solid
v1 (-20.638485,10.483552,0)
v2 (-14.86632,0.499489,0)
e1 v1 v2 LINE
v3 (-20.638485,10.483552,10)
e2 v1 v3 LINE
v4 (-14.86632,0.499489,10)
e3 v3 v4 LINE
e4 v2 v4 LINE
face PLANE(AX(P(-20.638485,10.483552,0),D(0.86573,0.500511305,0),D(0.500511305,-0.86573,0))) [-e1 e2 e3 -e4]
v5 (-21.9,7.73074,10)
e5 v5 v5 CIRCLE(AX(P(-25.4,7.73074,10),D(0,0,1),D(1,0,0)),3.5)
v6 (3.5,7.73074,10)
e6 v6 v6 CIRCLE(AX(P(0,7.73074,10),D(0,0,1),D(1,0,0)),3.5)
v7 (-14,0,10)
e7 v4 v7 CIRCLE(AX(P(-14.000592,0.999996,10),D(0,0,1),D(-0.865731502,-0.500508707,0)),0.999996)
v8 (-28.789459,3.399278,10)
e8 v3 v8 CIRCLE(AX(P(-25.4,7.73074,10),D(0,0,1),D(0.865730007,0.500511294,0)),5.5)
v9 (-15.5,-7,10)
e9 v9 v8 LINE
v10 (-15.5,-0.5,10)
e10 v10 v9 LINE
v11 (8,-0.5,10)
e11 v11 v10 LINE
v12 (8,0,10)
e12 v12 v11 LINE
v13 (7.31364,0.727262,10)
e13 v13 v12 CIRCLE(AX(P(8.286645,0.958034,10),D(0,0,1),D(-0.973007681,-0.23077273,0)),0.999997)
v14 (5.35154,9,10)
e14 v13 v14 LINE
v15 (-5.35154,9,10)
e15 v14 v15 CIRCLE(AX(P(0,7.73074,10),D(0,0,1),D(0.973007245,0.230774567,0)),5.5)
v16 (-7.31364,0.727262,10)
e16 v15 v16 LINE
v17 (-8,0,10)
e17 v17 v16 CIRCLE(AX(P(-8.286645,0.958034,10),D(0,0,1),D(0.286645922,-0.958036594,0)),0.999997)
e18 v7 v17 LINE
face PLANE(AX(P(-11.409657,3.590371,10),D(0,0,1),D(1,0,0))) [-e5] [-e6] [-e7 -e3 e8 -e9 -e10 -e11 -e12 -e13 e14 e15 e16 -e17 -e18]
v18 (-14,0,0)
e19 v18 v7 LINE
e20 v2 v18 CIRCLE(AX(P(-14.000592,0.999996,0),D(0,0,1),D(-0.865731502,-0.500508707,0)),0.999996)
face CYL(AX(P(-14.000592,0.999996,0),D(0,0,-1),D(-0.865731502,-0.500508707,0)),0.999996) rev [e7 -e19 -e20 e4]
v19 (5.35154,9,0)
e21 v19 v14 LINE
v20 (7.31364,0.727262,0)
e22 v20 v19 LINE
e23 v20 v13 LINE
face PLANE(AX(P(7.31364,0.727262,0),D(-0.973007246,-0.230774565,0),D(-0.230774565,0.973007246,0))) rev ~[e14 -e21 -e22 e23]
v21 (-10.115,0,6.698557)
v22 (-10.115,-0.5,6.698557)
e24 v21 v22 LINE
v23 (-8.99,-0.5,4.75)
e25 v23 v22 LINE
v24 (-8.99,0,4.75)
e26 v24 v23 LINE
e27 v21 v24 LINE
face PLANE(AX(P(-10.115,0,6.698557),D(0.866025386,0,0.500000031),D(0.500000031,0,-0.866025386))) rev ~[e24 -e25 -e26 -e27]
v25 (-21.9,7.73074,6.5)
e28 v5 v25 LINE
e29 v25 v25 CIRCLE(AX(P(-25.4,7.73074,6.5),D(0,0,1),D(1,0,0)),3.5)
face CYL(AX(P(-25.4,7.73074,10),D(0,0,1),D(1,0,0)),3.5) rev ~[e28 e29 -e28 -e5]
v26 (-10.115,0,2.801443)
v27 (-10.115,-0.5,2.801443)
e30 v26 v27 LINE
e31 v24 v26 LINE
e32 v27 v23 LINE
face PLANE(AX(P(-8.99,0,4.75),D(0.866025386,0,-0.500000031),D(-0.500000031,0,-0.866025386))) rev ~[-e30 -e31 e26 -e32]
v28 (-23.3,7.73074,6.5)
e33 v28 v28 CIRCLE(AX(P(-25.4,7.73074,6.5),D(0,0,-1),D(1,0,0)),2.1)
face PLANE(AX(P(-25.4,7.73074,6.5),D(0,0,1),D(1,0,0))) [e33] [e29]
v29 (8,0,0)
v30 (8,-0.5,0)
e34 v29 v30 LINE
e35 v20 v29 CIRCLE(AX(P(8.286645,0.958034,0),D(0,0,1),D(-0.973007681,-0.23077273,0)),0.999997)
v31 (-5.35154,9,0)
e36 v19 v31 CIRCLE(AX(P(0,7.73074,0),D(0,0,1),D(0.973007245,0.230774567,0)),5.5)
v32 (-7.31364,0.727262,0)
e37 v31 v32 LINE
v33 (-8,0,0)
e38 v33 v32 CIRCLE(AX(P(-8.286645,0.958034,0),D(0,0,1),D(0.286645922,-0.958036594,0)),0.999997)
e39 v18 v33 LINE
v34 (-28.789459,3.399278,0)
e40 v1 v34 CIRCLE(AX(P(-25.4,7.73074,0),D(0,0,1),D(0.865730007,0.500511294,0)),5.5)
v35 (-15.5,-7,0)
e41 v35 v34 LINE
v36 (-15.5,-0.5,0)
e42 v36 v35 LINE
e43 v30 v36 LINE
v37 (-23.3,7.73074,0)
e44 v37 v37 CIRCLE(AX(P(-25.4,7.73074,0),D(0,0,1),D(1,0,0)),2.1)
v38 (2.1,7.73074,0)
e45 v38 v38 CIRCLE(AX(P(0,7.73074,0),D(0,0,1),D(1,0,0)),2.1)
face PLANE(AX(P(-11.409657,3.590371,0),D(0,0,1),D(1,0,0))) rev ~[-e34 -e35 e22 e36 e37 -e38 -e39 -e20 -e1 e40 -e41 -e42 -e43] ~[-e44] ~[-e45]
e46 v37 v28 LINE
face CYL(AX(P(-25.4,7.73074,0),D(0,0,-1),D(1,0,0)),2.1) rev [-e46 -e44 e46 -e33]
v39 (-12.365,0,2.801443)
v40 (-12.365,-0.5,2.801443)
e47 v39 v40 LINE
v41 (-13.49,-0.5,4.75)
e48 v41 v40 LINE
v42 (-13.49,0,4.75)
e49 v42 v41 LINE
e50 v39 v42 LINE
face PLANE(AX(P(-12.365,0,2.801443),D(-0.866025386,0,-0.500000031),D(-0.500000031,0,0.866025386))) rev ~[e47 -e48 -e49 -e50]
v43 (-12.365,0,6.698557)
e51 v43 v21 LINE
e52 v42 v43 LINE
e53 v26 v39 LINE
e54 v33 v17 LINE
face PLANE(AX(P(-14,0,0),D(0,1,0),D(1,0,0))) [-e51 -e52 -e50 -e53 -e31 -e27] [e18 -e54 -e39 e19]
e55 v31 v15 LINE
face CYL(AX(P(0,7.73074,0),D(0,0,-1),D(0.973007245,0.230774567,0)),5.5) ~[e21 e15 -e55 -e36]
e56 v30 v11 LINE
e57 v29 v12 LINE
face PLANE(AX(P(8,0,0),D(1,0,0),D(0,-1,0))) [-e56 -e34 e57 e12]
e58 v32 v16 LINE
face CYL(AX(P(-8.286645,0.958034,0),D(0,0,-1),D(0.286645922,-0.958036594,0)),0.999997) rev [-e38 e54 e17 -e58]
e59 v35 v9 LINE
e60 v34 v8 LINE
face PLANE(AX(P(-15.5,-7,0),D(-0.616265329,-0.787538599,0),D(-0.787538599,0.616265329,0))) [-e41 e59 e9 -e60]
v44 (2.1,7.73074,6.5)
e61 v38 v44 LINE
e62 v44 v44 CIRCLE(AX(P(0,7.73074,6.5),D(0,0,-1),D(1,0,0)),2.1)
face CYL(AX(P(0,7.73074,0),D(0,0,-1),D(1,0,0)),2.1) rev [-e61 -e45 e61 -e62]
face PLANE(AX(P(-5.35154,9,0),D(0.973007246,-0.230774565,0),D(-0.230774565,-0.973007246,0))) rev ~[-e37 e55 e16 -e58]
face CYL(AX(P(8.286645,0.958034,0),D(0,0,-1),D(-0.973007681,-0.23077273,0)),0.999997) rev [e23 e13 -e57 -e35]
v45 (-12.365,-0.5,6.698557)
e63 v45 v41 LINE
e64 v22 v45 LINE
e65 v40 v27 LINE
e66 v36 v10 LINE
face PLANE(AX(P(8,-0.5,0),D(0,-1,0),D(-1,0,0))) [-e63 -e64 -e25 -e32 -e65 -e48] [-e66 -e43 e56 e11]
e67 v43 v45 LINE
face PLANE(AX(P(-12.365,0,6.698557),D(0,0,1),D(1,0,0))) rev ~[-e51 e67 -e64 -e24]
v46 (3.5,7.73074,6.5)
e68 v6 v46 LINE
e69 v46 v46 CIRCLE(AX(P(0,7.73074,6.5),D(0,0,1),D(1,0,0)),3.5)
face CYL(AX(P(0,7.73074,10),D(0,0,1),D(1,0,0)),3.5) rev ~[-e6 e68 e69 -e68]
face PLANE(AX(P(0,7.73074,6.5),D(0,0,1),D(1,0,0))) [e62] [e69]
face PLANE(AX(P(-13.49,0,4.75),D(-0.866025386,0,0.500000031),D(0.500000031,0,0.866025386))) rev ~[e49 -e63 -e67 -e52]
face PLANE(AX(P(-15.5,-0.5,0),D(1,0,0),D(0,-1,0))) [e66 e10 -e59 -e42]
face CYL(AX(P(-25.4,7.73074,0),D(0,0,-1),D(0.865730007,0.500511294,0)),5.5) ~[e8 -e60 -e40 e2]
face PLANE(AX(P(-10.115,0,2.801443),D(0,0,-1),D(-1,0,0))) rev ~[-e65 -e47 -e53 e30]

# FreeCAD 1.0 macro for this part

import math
import FreeCAD as App
import Part
import Sketcher
Q = App.Units.Quantity

doc = App.newDocument("Part")
body = doc.addObject("PartDesign::Body", "Body")

# Sketch on XY plane
sketch1 = body.newObject("Sketcher::SketchObject", "Sketch")
sketch1.AttachmentSupport = (doc.getObject("XY_Plane"), [""])
sketch1.MapMode = "FlatFace"
sketch1.addGeometry(Part.LineSegment(App.Vector(7.3, 0.7, 0), App.Vector(5.4, 9, 0)), False)
sketch1.addGeometry(Part.ArcOfCircle(Part.Circle(App.Vector(0, 7.7, 0), App.Vector(0, 0, 1), 5.5), math.radians(13), math.radians(167)), False)
sketch1.addGeometry(Part.LineSegment(App.Vector(-5.4, 9, 0), App.Vector(-7.3, 0.7, 0)), False)
sketch1.addGeometry(Part.ArcOfCircle(Part.Circle(App.Vector(-8.3, 1, 0), App.Vector(0, 0, 1), 1), math.radians(-73), math.radians(-13)), False)
sketch1.addGeometry(Part.LineSegment(App.Vector(-8, 0, 0), App.Vector(-14, 0, 0)), False)
sketch1.addGeometry(Part.ArcOfCircle(Part.Circle(App.Vector(-14, 1, 0), App.Vector(0, 0, 1), 1), math.radians(-150), math.radians(-90)), False)
sketch1.addGeometry(Part.LineSegment(App.Vector(-14.9, 0.5, 0), App.Vector(-20.6, 10.5, 0)), False)
sketch1.addGeometry(Part.ArcOfCircle(Part.Circle(App.Vector(-25.4, 7.7, 0), App.Vector(0, 0, 1), 5.5), math.radians(30), math.radians(232)), False)
sketch1.addGeometry(Part.LineSegment(App.Vector(-28.8, 3.4, 0), App.Vector(-15.5, -7, 0)), False)
sketch1.addGeometry(Part.LineSegment(App.Vector(-15.5, -7, 0), App.Vector(-15.5, -0.5, 0)), False)
sketch1.addGeometry(Part.LineSegment(App.Vector(-15.5, -0.5, 0), App.Vector(8, -0.5, 0)), False)
sketch1.addGeometry(Part.LineSegment(App.Vector(8, -0.5, 0), App.Vector(8, 0, 0)), False)
sketch1.addGeometry(Part.ArcOfCircle(Part.Circle(App.Vector(8.3, 1, 0), App.Vector(0, 0, 1), 1), math.radians(-167), math.radians(-107)), False)
sketch1.addGeometry(Part.Circle(App.Vector(-25.4, 7.7, 0), App.Vector(0, 0, 1), 2.1), False)
sketch1.addGeometry(Part.Circle(App.Vector(0, 7.7, 0), App.Vector(0, 0, 1), 2.1), False)
sketch1.addConstraint(Sketcher.Constraint("Tangent", 0, 2, 1, 1))
sketch1.addConstraint(Sketcher.Constraint("Tangent", 1, 2, 2, 1))
sketch1.addConstraint(Sketcher.Constraint("Tangent", 2, 2, 3, 2))
sketch1.addConstraint(Sketcher.Constraint("Coincident", 3, 1, 4, 1))
sketch1.addConstraint(Sketcher.Constraint("Coincident", 4, 2, 5, 2))
sketch1.addConstraint(Sketcher.Constraint("Coincident", 5, 1, 6, 1))
sketch1.addConstraint(Sketcher.Constraint("Tangent", 6, 2, 7, 1))
sketch1.addConstraint(Sketcher.Constraint("Tangent", 7, 2, 8, 1))
sketch1.addConstraint(Sketcher.Constraint("Coincident", 8, 2, 9, 1))
sketch1.addConstraint(Sketcher.Constraint("Coincident", 9, 2, 10, 1))
sketch1.addConstraint(Sketcher.Constraint("Coincident", 10, 2, 11, 1))
sketch1.addConstraint(Sketcher.Constraint("Coincident", 11, 2, 12, 2))
sketch1.addConstraint(Sketcher.Constraint("Tangent", 12, 1, 0, 1))
sketch1.addConstraint(Sketcher.Constraint("Horizontal", 4))
sketch1.addConstraint(Sketcher.Constraint("Vertical", 9))
sketch1.addConstraint(Sketcher.Constraint("Horizontal", 10))
sketch1.addConstraint(Sketcher.Constraint("Vertical", 11))
sketch1.addConstraint(Sketcher.Constraint("Coincident", 13, 3, 7, 3))
sketch1.addConstraint(Sketcher.Constraint("Coincident", 14, 3, 1, 3))
sketch1.addConstraint(Sketcher.Constraint("Equal", 3, 5))
sketch1.addConstraint(Sketcher.Constraint("Equal", 1, 7))
sketch1.addConstraint(Sketcher.Constraint("Equal", 5, 12))
sketch1.addConstraint(Sketcher.Constraint("Equal", 13, 14))
sketch1.addConstraint(Sketcher.Constraint("Symmetric", 3, 1, 11, 2, -1, 1))
sketch1.addConstraint(Sketcher.Constraint("Symmetric", 3, 3, 12, 3, -2))
sketch1.addConstraint(Sketcher.Constraint("PointOnObject", 1, 3, -2))
sketch1.addConstraint(Sketcher.Constraint("Horizontal", 1, 3, 7, 3))
sketch1.addConstraint(Sketcher.Constraint("Diameter", 13, 4.2))
sketch1.addConstraint(Sketcher.Constraint("Radius", 1, 5.5))
sketch1.addConstraint(Sketcher.Constraint("DistanceX", 4, 2, 4, 1, 6.0))
sketch1.addConstraint(Sketcher.Constraint("DistanceX", 10, 1, 10, 2, 23.5))
sketch1.addConstraint(Sketcher.Constraint("DistanceY", 9, 1, 9, 2, 6.5))
sketch1.addConstraint(Sketcher.Constraint("DistanceY", 11, 1, 11, 2, 0.5))
sketch1.addConstraint(Sketcher.Constraint("DistanceY", -1, 1, 0, 2, 9.0))
sketch1.addConstraint(Sketcher.Constraint("DistanceX", 3, 1, -1, 1, 8.0))
sketch1.addConstraint(Sketcher.Constraint("DistanceX", 7, 3, -1, 1, 25.4))
sketch1.addConstraint(Sketcher.Constraint("Radius", 3, 0.999997))
sketch1.addConstraint(Sketcher.Constraint("DistanceX", 2, 2, 1, 2, 1.9621))
sketch1.addConstraint(Sketcher.Constraint("DistanceX", 5, 1, -1, 1, 14.86632))
sketch1.addConstraint(Sketcher.Constraint("DistanceY", -1, 1, 5, 1, 0.499489))
pad1 = body.newObject("PartDesign::Pad", "Pad")
pad1.Profile = sketch1
pad1.Length = 10

# Sketch on XZ plane
sketch2 = body.newObject("Sketcher::SketchObject", "Sketch001")
sketch2.AttachmentSupport = (doc.getObject("XZ_Plane"), [""])
sketch2.MapMode = "FlatFace"
sketch2.addGeometry(Part.LineSegment(App.Vector(-12.4, 2.8, 0), App.Vector(-13.5, 4.8, 0)), False)
sketch2.addGeometry(Part.LineSegment(App.Vector(-13.5, 4.8, 0), App.Vector(-12.4, 6.7, 0)), False)
sketch2.addGeometry(Part.LineSegment(App.Vector(-12.4, 6.7, 0), App.Vector(-10.1, 6.7, 0)), False)
sketch2.addGeometry(Part.LineSegment(App.Vector(-10.1, 6.7, 0), App.Vector(-9, 4.8, 0)), False)
sketch2.addGeometry(Part.LineSegment(App.Vector(-9, 4.8, 0), App.Vector(-10.1, 2.8, 0)), False)
sketch2.addGeometry(Part.LineSegment(App.Vector(-10.1, 2.8, 0), App.Vector(-12.4, 2.8, 0)), False)
sketch2.addConstraint(Sketcher.Constraint("Coincident", 0, 2, 1, 1))
sketch2.addConstraint(Sketcher.Constraint("Coincident", 1, 2, 2, 1))
sketch2.addConstraint(Sketcher.Constraint("Coincident", 2, 2, 3, 1))
sketch2.addConstraint(Sketcher.Constraint("Coincident", 3, 2, 4, 1))
sketch2.addConstraint(Sketcher.Constraint("Coincident", 4, 2, 5, 1))
sketch2.addConstraint(Sketcher.Constraint("Coincident", 5, 2, 0, 1))
sketch2.addConstraint(Sketcher.Constraint("Horizontal", 2))
sketch2.addConstraint(Sketcher.Constraint("Horizontal", 5))
sketch2.addConstraint(Sketcher.Constraint("Parallel", 0, 3))
sketch2.addConstraint(Sketcher.Constraint("Parallel", 1, 4))
sketch2.addConstraint(Sketcher.Constraint("Horizontal", 0, 2, 3, 2))
sketch2.addConstraint(Sketcher.Constraint("Vertical", 2, 2, 4, 2))
sketch2.addConstraint(Sketcher.Constraint("Vertical", 1, 2, 5, 2))
sketch2.addConstraint(Sketcher.Constraint("Angle", 0, Q("120.000002 deg")))
sketch2.addConstraint(Sketcher.Constraint("DistanceX", 2, 1, 2, 2, 2.25))
sketch2.addConstraint(Sketcher.Constraint("DistanceX", 0, 2, 3, 2, 4.5))
sketch2.addConstraint(Sketcher.Constraint("DistanceX", 0, 2, -1, 1, 13.49))
sketch2.addConstraint(Sketcher.Constraint("DistanceY", -1, 1, 0, 2, 4.75))
pocket1 = body.newObject("PartDesign::Pocket", "Pocket")
pocket1.Profile = sketch2
pocket1.Length = 3
pocket1.Reversed = True

# Sketch on XY plane
sketch3 = body.newObject("Sketcher::SketchObject", "Sketch002")
sketch3.AttachmentSupport = (doc.getObject("XY_Plane"), [""])
sketch3.MapMode = "FlatFace"
sketch3.AttachmentOffset = App.Placement(App.Vector(0, 0, 10), App.Rotation())
sketch3.addGeometry(Part.Circle(App.Vector(-25.4, 7.7, 0), App.Vector(0, 0, 1), 3.5), False)
sketch3.addGeometry(Part.Circle(App.Vector(0, 7.7, 0), App.Vector(0, 0, 1), 3.5), False)
sketch3.addConstraint(Sketcher.Constraint("Equal", 0, 1))
sketch3.addConstraint(Sketcher.Constraint("PointOnObject", 1, 3, -2))
sketch3.addConstraint(Sketcher.Constraint("Horizontal", 0, 3, 1, 3))
sketch3.addConstraint(Sketcher.Constraint("Diameter", 0, 7.0))
sketch3.addConstraint(Sketcher.Constraint("DistanceX", 0, 3, -1, 1, 25.4))
sketch3.addConstraint(Sketcher.Constraint("DistanceY", -1, 1, 0, 3, 7.73074))
pocket2 = body.newObject("PartDesign::Pocket", "Pocket001")
pocket2.Profile = sketch3
pocket2.Length = 3.5

doc.recompute()
